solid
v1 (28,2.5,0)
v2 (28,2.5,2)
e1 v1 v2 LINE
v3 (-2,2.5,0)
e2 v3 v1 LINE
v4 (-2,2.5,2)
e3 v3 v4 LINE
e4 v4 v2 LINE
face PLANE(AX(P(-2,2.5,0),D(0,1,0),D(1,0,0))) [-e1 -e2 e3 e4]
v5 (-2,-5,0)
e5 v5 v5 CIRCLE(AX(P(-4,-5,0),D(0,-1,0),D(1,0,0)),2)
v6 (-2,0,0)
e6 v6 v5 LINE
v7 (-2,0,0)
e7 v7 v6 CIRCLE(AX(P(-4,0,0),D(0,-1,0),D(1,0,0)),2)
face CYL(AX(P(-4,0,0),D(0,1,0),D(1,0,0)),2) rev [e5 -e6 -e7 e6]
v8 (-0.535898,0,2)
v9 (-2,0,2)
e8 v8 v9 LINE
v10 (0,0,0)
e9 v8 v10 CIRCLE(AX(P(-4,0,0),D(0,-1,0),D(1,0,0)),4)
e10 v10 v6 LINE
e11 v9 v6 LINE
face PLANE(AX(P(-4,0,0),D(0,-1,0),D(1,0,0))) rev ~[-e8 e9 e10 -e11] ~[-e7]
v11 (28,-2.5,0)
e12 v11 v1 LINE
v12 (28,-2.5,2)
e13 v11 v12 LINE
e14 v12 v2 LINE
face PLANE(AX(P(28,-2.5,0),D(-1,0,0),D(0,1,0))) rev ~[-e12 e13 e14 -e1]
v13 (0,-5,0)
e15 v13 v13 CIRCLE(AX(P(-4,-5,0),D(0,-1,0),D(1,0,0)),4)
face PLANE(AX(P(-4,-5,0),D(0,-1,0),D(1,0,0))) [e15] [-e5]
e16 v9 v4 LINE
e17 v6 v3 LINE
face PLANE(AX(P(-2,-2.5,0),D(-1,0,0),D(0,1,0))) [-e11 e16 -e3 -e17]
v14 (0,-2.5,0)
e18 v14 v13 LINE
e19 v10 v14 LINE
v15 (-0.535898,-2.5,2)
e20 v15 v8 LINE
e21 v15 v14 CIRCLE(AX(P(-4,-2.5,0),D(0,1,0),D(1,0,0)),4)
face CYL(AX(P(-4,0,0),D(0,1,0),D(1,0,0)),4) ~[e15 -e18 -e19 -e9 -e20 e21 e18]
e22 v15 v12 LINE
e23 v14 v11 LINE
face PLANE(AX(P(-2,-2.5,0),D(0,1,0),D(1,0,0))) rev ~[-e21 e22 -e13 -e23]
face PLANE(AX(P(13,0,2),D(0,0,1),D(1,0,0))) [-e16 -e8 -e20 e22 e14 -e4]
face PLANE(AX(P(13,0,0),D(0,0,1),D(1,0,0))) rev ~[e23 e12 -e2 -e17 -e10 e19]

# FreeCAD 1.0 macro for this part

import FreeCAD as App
import Part
import Sketcher
from FreeCAD import Vector

doc = App.newDocument("Part")
params = doc.addObject("Spreadsheet::Sheet", "Params")
for row, (alias, value) in enumerate([
    ("sketch1_diameter", "8 mm"),
    ("sketch1_diameter2", "4 mm"),
    ("pad1_length", "5 mm"),
    ("sketch2_width", "30 mm"),
    ("sketch2_height", "5 mm"),
    ("pad2_length", "2 mm"),
], start=1):
    params.set(f"A{row}", alias)
    params.set(f"B{row}", "=" + value)
    params.setAlias(f"B{row}", alias)

body = doc.addObject("PartDesign::Body", "Body")

# Sketch on XZ plane
sketch1 = body.newObject("Sketcher::SketchObject", "Sketch")
sketch1.AttachmentSupport = (doc.getObject("XZ_Plane"), [""])
sketch1.MapMode = "FlatFace"
sketch1.addGeometry([
    Part.Circle(Vector(-4, 0, 0), Vector(0, 0, 1), 4),
    Part.Circle(Vector(-4, 0, 0), Vector(0, 0, 1), 2),
], False)
sketch1.addConstraint([
    Sketcher.Constraint("Coincident", 1, 3, 0, 3),
    Sketcher.Constraint("PointOnObject", 0, 3, -1),
    Sketcher.Constraint("Diameter", 0, 8.0),
    Sketcher.Constraint("Diameter", 1, 4.0),
    Sketcher.Constraint("DistanceX", 0, 3, -1, 1, 4.0),
])
sketch1.setExpression("Constraints[2]", "Params.sketch1_diameter")
sketch1.setExpression("Constraints[3]", "Params.sketch1_diameter2")
pad1 = body.newObject("PartDesign::Pad", "Pad")
pad1.Profile = sketch1
pad1.setExpression("Length", "Params.pad1_length")

# Sketch on XY plane
sketch2 = body.newObject("Sketcher::SketchObject", "Sketch001")
sketch2.AttachmentSupport = (doc.getObject("XY_Plane"), [""])
sketch2.MapMode = "FlatFace"
sketch2.addGeometry([
    Part.LineSegment(Vector(-2, 2, 0), Vector(-2, -2, 0)),
    Part.LineSegment(Vector(-2, -2, 0), Vector(28, -2, 0)),
    Part.LineSegment(Vector(28, -2, 0), Vector(28, 2, 0)),
    Part.LineSegment(Vector(28, 2, 0), Vector(-2, 2, 0)),
], False)
sketch2.addConstraint([
    Sketcher.Constraint("Coincident", 0, 2, 1, 1),
    Sketcher.Constraint("Coincident", 1, 2, 2, 1),
    Sketcher.Constraint("Coincident", 2, 2, 3, 1),
    Sketcher.Constraint("Coincident", 3, 2, 0, 1),
    Sketcher.Constraint("Vertical", 0),
    Sketcher.Constraint("Horizontal", 1),
    Sketcher.Constraint("Vertical", 2),
    Sketcher.Constraint("Horizontal", 3),
    Sketcher.Constraint("DistanceX", 1, 1, 1, 2, 30.0),
    Sketcher.Constraint("DistanceY", 0, 2, 0, 1, 5.0),
    Sketcher.Constraint("DistanceX", 0, 2, -1, 1, 2.0),
    Sketcher.Constraint("DistanceY", 0, 2, -1, 1, 2.5),
])
sketch2.setExpression("Constraints[8]", "Params.sketch2_width")
sketch2.setExpression("Constraints[9]", "Params.sketch2_height")
pad2 = body.newObject("PartDesign::Pad", "Pad001")
pad2.Profile = sketch2
pad2.setExpression("Length", "Params.pad2_length")

doc.recompute()
